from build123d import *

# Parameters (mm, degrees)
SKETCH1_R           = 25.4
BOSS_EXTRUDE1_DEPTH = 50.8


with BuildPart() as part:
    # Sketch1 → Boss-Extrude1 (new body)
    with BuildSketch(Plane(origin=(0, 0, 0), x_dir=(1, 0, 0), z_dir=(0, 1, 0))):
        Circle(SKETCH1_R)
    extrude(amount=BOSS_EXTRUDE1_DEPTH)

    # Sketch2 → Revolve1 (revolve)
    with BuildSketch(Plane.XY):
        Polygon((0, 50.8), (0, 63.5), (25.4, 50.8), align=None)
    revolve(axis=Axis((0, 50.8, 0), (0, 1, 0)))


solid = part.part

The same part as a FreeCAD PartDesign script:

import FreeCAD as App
import Part
import Sketcher
Q = App.Units.Quantity

doc = App.newDocument("Part")
body = doc.addObject("PartDesign::Body", "Body")

# Sketch on XZ plane
sketch1 = body.newObject("Sketcher::SketchObject", "Sketch")
sketch1.AttachmentSupport = (doc.getObject("XZ_Plane"), [""])
sketch1.MapMode = "FlatFace"
sketch1.addGeometry(Part.Circle(App.Vector(0, 0, 0), App.Vector(0, 0, 1), 25.4), False)
sketch1.addConstraint([
    Sketcher.Constraint("Coincident", 0, 3, -1, 1),
    Sketcher.Constraint("Diameter", 0, Q("2 in")),
])
pad1 = body.newObject("PartDesign::Pad", "Pad")
pad1.Profile = sketch1
pad1.Length = Q("2 in")
pad1.Reversed = True

# Sketch on XY plane
sketch2 = body.newObject("Sketcher::SketchObject", "Sketch001")
sketch2.AttachmentSupport = (doc.getObject("XY_Plane"), [""])
sketch2.MapMode = "FlatFace"
sketch2.addGeometry([
    Part.LineSegment(App.Vector(0, 63.5, 0), App.Vector(0, 50.8, 0)),
    Part.LineSegment(App.Vector(0, 50.8, 0), App.Vector(25.4, 50.8, 0)),
    Part.LineSegment(App.Vector(25.4, 50.8, 0), App.Vector(0, 63.5, 0)),
], False)
sketch2.addConstraint([
    Sketcher.Constraint("Coincident", 0, 2, 1, 1),
    Sketcher.Constraint("Coincident", 1, 2, 2, 1),
    Sketcher.Constraint("Coincident", 2, 2, 0, 1),
    Sketcher.Constraint("Vertical", 0),
    Sketcher.Constraint("Horizontal", 1),
    Sketcher.Constraint("PointOnObject", 0, 2, -2),
    Sketcher.Constraint("DistanceX", 1, 1, 1, 2, Q("1 in")),
    Sketcher.Constraint("DistanceY", 0, 2, 0, 1, Q("0.5 in")),
    Sketcher.Constraint("DistanceY", -1, 1, 0, 2, Q("2 in")),
])
revolution = body.newObject("PartDesign::Revolution", "Revolution")
revolution.Profile = sketch2
revolution.ReferenceAxis = (sketch2, ["V_Axis"])
revolution.Angle = 360

doc.recompute()
